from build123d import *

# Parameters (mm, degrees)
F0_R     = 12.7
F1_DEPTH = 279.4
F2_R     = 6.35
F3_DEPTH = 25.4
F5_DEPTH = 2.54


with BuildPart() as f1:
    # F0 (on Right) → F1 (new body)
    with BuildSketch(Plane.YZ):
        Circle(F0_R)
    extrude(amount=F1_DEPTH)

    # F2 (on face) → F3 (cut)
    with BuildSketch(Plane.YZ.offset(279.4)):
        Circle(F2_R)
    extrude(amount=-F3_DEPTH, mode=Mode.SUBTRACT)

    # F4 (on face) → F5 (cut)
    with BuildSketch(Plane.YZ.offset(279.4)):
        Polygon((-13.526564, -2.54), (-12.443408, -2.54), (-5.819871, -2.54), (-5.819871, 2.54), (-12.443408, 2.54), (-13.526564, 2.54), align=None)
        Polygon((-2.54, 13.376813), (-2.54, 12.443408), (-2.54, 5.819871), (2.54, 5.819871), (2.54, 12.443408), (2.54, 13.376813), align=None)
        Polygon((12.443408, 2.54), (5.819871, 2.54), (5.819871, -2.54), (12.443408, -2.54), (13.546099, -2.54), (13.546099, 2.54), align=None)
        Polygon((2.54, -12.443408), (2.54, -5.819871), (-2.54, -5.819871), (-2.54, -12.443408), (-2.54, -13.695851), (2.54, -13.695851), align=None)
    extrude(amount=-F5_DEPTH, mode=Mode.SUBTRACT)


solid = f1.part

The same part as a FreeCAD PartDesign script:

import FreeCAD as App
import Part
import Sketcher
from FreeCAD import Vector
Q = App.Units.Quantity


def add_polygon(sketch, points):
    """Adds a closed chain of lines whose ends are joined by coincident constraints."""
    first, n = sketch.GeometryCount, len(points)
    for a, b in zip(points, points[1:] + points[:1]):
        sketch.addGeometry(Part.LineSegment(App.Vector(*a, 0), App.Vector(*b, 0)), False)
    for i in range(n):
        sketch.addConstraint(Sketcher.Constraint("Coincident", first + i, 2, first + (i + 1) % n, 1))

doc = App.newDocument("Part")
body = doc.addObject("PartDesign::Body", "Body")

# Sketch on YZ plane
sketch1 = doc.addObject("Sketcher::SketchObject", "Sketch")
body.addObject(sketch1)
sketch1.AttachmentSupport = (doc.YZ_Plane, [""])
sketch1.MapMode = "FlatFace"
sketch1.addGeometry(Part.Circle(Vector(0, 0, 0), Vector(0, 0, 1), 13), False)
sketch1.addConstraint([
    Sketcher.Constraint("Coincident", 0, 3, -1, 1),
    Sketcher.Constraint("Diameter", 0, Q("1 in")),
])
pad1 = doc.addObject("PartDesign::Pad", "Pad")
body.addObject(pad1)
pad1.Profile = sketch1
pad1.Length = Q("11 in")

# Sketch on YZ plane
sketch2 = doc.addObject("Sketcher::SketchObject", "Sketch001")
body.addObject(sketch2)
sketch2.AttachmentSupport = (doc.YZ_Plane, [""])
sketch2.MapMode = "FlatFace"
sketch2.AttachmentOffset = App.Placement(Vector(0, 0, 11 * 25.4), App.Rotation())
sketch2.addGeometry(Part.Circle(Vector(0, 0, 0), Vector(0, 0, 1), 6), False)
sketch2.addConstraint([
    Sketcher.Constraint("Coincident", 0, 3, -1, 1),
    Sketcher.Constraint("Diameter", 0, Q("0.5 in")),
])
pocket1 = doc.addObject("PartDesign::Pocket", "Pocket")
body.addObject(pocket1)
pocket1.Profile = sketch2
pocket1.Length = Q("1 in")

# Sketch on YZ plane
sketch3 = doc.addObject("Sketcher::SketchObject", "Sketch002")
body.addObject(sketch3)
sketch3.AttachmentSupport = (doc.YZ_Plane, [""])
sketch3.MapMode = "FlatFace"
sketch3.AttachmentOffset = App.Placement(Vector(0, 0, 11 * 25.4), App.Rotation())
add_polygon(sketch3, [(-14, -3), (-6, -3), (-6, 3), (-14, 3)])  # lines 0-3
add_polygon(sketch3, [(-3, 13), (-3, 6), (3, 6), (3, 13)])  # lines 4-7
add_polygon(sketch3, [(6, 3), (6, -3), (14, -3), (14, 3)])  # lines 8-11
add_polygon(sketch3, [(3, -6), (-3, -6), (-3, -14), (3, -14)])  # lines 12-15
sketch3.addConstraint([
    Sketcher.Constraint("Horizontal", 0),
    Sketcher.Constraint("Vertical", 1),
    Sketcher.Constraint("Horizontal", 2),
    Sketcher.Constraint("Vertical", 3),
    Sketcher.Constraint("Vertical", 4),
    Sketcher.Constraint("Horizontal", 5),
    Sketcher.Constraint("Vertical", 6),
    Sketcher.Constraint("Horizontal", 7),
    Sketcher.Constraint("Vertical", 8),
    Sketcher.Constraint("Horizontal", 9),
    Sketcher.Constraint("Vertical", 10),
    Sketcher.Constraint("Horizontal", 11),
    Sketcher.Constraint("Horizontal", 12),
    Sketcher.Constraint("Vertical", 13),
    Sketcher.Constraint("Horizontal", 14),
    Sketcher.Constraint("Vertical", 15),
    Sketcher.Constraint("Symmetric", 1, 2, 8, 2, -1, 1),
    Sketcher.Constraint("Symmetric", 5, 2, 12, 2, -1, 1),
    Sketcher.Constraint("Horizontal", 3, 2, 8, 2),
    Sketcher.Constraint("Horizontal", 2, 2, 10, 2),
    Sketcher.Constraint("Vertical", 7, 2, 12, 2),
    Sketcher.Constraint("Vertical", 6, 2, 14, 2),
    Sketcher.Constraint("Equal", 14, 1),
    Sketcher.Constraint("DistanceX", 5, 1, 5, 2, Q("0.2 in")),
    Sketcher.Constraint("DistanceY", 13, 2, 13, 1, Q("7.87598 mm")),
    Sketcher.Constraint("DistanceX", -1, 1, 9, 2, Q("13.546099 mm")),
    Sketcher.Constraint("DistanceX", 0, 1, 0, 2, Q("7.706693 mm")),
    Sketcher.Constraint("DistanceX", 9, 1, 9, 2, Q("7.726228 mm")),
    Sketcher.Constraint("DistanceY", 4, 2, 4, 1, Q("7.556942 mm")),
    Sketcher.Constraint("DistanceY", -1, 1, 4, 2, Q("5.819871 mm")),
])
pocket2 = doc.addObject("PartDesign::Pocket", "Pocket001")
body.addObject(pocket2)
pocket2.Profile = sketch3
pocket2.Length = Q("0.1 in")

doc.recompute()
